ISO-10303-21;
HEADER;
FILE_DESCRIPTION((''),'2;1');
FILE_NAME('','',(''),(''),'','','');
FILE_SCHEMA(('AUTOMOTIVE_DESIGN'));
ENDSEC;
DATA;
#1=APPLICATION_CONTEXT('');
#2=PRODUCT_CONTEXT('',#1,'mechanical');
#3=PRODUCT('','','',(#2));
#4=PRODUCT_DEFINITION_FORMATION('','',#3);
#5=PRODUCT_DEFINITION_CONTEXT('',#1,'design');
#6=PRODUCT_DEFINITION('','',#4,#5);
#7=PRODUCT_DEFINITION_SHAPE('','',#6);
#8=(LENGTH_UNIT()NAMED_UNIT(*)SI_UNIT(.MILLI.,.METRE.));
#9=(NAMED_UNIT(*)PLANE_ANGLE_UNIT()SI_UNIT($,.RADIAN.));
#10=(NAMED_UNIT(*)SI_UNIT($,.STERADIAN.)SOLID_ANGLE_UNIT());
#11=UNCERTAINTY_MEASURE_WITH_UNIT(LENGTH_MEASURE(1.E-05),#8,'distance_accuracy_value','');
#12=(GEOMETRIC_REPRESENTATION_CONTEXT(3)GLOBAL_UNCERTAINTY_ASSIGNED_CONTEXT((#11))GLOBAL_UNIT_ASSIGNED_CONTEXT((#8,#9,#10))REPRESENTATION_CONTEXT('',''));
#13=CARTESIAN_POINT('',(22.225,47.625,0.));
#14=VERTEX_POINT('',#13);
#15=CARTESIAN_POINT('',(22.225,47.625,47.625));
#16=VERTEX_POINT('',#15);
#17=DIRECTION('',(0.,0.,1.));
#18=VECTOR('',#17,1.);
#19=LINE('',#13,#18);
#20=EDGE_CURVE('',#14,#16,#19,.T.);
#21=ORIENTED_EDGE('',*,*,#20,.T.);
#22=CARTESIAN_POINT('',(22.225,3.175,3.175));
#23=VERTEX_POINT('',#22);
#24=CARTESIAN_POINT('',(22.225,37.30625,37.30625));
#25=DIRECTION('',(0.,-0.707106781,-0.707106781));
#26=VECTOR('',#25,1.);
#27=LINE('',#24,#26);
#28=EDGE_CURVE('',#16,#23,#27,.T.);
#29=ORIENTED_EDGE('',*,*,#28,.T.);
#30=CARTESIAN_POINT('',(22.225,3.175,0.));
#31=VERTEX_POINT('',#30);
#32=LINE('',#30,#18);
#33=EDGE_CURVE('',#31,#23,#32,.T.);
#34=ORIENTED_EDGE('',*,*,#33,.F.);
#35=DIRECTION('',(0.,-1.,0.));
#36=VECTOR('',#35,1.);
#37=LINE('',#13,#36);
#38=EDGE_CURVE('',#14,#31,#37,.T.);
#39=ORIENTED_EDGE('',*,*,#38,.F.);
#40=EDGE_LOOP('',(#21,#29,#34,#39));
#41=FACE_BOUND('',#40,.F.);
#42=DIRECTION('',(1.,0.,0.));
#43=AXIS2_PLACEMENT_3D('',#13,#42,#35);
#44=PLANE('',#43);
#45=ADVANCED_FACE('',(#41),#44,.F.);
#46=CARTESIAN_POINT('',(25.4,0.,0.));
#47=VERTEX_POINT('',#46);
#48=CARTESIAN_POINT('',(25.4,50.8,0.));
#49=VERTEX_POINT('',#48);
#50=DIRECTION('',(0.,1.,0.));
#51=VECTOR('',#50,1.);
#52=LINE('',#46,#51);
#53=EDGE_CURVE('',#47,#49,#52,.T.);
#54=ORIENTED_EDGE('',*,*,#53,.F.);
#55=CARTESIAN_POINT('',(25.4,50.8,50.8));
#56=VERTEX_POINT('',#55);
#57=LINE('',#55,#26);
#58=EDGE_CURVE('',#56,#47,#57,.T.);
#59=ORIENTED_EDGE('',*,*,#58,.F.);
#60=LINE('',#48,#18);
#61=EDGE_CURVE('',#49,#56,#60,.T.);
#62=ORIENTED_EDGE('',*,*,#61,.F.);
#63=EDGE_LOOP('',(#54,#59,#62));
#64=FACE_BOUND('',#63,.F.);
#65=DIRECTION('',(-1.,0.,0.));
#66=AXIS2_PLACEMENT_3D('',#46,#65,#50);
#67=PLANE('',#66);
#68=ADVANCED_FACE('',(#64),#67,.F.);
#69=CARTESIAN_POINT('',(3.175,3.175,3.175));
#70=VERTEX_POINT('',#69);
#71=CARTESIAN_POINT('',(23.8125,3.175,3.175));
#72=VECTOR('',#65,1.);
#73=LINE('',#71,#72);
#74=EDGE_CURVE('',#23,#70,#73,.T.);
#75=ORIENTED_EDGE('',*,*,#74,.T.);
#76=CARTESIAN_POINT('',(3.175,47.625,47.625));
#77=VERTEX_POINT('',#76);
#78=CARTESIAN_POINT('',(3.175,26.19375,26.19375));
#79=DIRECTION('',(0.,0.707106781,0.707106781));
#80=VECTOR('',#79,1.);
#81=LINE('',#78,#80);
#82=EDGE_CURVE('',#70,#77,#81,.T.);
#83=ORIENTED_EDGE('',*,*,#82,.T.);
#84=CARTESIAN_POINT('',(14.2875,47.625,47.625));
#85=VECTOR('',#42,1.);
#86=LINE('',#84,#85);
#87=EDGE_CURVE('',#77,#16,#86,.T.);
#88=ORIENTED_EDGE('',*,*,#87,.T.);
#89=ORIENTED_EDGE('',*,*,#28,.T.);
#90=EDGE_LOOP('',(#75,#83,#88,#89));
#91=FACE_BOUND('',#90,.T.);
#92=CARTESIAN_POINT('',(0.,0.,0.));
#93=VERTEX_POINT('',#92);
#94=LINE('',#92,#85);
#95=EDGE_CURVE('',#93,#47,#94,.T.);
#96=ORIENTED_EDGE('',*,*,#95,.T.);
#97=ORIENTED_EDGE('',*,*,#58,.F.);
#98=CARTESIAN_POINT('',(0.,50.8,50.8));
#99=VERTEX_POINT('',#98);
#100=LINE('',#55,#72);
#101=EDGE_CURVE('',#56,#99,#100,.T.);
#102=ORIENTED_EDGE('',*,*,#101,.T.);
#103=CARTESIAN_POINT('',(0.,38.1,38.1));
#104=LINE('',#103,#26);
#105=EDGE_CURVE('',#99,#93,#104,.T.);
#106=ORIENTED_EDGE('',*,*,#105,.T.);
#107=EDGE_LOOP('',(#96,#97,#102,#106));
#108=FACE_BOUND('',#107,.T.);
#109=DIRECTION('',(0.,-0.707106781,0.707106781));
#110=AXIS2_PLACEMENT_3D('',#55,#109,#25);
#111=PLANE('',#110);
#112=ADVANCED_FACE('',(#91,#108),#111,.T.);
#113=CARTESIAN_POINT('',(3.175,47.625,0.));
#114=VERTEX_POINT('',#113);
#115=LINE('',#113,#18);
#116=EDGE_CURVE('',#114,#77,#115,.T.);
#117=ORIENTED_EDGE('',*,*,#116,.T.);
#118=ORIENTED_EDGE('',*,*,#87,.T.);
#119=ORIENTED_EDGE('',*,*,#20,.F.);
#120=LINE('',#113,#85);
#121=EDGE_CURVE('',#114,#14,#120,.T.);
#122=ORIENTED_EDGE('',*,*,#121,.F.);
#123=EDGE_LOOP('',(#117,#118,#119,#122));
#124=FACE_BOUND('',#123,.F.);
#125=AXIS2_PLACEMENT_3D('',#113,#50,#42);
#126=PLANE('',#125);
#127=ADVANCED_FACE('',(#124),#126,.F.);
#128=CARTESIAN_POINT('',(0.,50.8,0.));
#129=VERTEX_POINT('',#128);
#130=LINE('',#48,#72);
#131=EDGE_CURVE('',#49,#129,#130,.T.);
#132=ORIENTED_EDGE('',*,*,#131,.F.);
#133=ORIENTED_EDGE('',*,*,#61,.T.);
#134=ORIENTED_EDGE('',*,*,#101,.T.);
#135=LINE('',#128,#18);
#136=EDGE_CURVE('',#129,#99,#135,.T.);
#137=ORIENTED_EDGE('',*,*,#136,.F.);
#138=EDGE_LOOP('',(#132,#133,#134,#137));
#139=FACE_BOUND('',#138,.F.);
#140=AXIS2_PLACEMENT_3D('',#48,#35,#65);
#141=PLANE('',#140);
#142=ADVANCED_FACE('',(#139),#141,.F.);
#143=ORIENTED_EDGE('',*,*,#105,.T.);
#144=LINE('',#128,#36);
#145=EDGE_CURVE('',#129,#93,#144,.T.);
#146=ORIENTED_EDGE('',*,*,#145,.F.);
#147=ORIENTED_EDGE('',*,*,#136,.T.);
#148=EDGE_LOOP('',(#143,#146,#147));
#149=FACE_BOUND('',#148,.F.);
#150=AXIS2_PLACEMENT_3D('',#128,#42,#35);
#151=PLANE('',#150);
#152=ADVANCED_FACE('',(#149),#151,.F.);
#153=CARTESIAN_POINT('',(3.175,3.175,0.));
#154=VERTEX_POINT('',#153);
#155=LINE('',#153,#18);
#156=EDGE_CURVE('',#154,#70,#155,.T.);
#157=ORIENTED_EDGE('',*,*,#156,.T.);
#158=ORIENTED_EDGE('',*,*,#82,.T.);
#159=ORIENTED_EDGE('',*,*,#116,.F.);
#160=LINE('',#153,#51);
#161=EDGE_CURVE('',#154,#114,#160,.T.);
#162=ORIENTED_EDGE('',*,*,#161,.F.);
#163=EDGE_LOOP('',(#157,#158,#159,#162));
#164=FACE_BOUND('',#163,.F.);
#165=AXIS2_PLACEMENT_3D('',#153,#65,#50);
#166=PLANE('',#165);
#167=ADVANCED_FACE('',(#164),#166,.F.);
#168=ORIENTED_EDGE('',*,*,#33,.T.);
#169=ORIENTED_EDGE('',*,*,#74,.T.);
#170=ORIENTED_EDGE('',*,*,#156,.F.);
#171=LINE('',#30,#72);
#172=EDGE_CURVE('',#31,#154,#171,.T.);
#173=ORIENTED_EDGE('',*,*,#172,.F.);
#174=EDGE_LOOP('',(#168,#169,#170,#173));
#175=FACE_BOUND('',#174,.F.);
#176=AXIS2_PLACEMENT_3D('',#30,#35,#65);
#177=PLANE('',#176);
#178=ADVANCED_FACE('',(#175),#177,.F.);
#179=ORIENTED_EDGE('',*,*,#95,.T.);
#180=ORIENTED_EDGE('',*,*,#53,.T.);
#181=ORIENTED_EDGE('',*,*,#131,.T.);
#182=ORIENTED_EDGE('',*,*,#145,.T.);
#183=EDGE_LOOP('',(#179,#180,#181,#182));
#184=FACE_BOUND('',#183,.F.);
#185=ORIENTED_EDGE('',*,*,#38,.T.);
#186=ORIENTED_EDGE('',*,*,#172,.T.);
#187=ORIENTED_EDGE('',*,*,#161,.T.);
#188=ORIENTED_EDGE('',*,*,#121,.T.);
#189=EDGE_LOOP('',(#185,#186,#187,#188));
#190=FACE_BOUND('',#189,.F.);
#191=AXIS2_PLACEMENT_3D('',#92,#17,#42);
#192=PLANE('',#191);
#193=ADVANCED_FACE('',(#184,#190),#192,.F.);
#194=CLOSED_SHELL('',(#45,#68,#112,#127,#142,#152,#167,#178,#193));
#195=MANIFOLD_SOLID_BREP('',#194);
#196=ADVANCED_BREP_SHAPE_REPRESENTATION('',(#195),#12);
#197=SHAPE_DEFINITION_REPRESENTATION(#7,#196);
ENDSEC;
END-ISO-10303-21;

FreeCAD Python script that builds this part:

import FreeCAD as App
import Part
import Sketcher

V = App.Vector
Q = App.Units.Quantity

doc = App.newDocument("Part")
params = doc.addObject("Spreadsheet::Sheet", "Params")
for row, (alias, value) in enumerate([
    ("sketch1_width", "1 in"),
    ("sketch1_height", "2 in"),
    ("pad1_length", "2 in"),
    ("sketch2_width", "2 in"),
    ("pocket1_length", "2 in"),
], start=1):
    params.set(f"A{row}", alias)
    params.set(f"B{row}", "=" + value)
    params.setAlias(f"B{row}", alias)

body = doc.addObject("PartDesign::Body", "Body")

sketch1 = body.newObject("Sketcher::SketchObject", "Sketch")
sketch1.AttachmentSupport = (doc.getObject("XY_Plane"), [""])
sketch1.MapMode = "FlatFace"
sketch1.addGeometry([
    Part.LineSegment(V(0, 50.8, 0), V(0, 0, 0)),
    Part.LineSegment(V(0, 0, 0), V(25.4, 0, 0)),
    Part.LineSegment(V(25.4, 0, 0), V(25.4, 50.8, 0)),
    Part.LineSegment(V(25.4, 50.8, 0), V(0, 50.8, 0)),
    Part.LineSegment(V(3.175, 3.175, 0), V(3.175, 47.625, 0)),
    Part.LineSegment(V(3.175, 47.625, 0), V(22.225, 47.625, 0)),
    Part.LineSegment(V(22.225, 47.625, 0), V(22.225, 3.175, 0)),
    Part.LineSegment(V(22.225, 3.175, 0), V(3.175, 3.175, 0)),
], False)
sketch1.addConstraint([
    Sketcher.Constraint("Coincident", 0, 2, 1, 1),
    Sketcher.Constraint("Coincident", 1, 2, 2, 1),
    Sketcher.Constraint("Coincident", 2, 2, 3, 1),
    Sketcher.Constraint("Coincident", 3, 2, 0, 1),
    Sketcher.Constraint("Coincident", 4, 2, 5, 1),
    Sketcher.Constraint("Coincident", 5, 2, 6, 1),
    Sketcher.Constraint("Coincident", 6, 2, 7, 1),
    Sketcher.Constraint("Coincident", 7, 2, 4, 1),
    Sketcher.Constraint("Vertical", 0),
    Sketcher.Constraint("Horizontal", 1),
    Sketcher.Constraint("Vertical", 2),
    Sketcher.Constraint("Horizontal", 3),
    Sketcher.Constraint("Vertical", 4),
    Sketcher.Constraint("Horizontal", 5),
    Sketcher.Constraint("Vertical", 6),
    Sketcher.Constraint("Horizontal", 7),
    Sketcher.Constraint("Coincident", 0, 2, -1, 1),
    Sketcher.Constraint("DistanceX", 1, 1, 1, 2, Q("1 in")),
    Sketcher.Constraint("DistanceY", 0, 2, 0, 1, Q("2 in")),
    Sketcher.Constraint("DistanceX", -1, 1, 4, 2, Q("0.125 in")),
    Sketcher.Constraint("DistanceY", -1, 1, 6, 2, Q("0.125 in")),
    Sketcher.Constraint("DistanceY", 4, 2, 3, 2, Q("0.125 in")),
    Sketcher.Constraint("DistanceX", 5, 2, 2, 2, Q("0.125 in")),
])
sketch1.setExpression("Constraints[17]", "Params.sketch1_width")
sketch1.setExpression("Constraints[18]", "Params.sketch1_height")
pad1 = body.newObject("PartDesign::Pad", "Pad")
pad1.Profile = sketch1
pad1.setExpression("Length", "Params.pad1_length")

sketch2 = body.newObject("Sketcher::SketchObject", "Sketch001")
sketch2.AttachmentSupport = (doc.getObject("YZ_Plane"), [""])
sketch2.MapMode = "FlatFace"
sketch2.AttachmentOffset = App.Placement(V(0, 0, 1 * 25.4), App.Rotation())
sketch2.addGeometry([
    Part.LineSegment(V(0, 0, 0), V(50.8, 50.8, 0)),
    Part.LineSegment(V(50.8, 50.8, 0), V(0, 50.8, 0)),
    Part.LineSegment(V(0, 50.8, 0), V(0, 0, 0)),
], False)
sketch2.addConstraint([
    Sketcher.Constraint("Coincident", 0, 2, 1, 1),
    Sketcher.Constraint("Coincident", 1, 2, 2, 1),
    Sketcher.Constraint("Coincident", 2, 2, 0, 1),
    Sketcher.Constraint("Horizontal", 1),
    Sketcher.Constraint("Vertical", 2),
    Sketcher.Constraint("Coincident", 2, 2, -1, 1),
    Sketcher.Constraint("Equal", 1, 2),
    Sketcher.Constraint("DistanceX", 1, 2, 1, 1, Q("2 in")),
])
sketch2.setExpression("Constraints[7]", "Params.sketch2_width")
pocket1 = body.newObject("PartDesign::Pocket", "Pocket")
pocket1.Profile = sketch2
pocket1.setExpression("Length", "Params.pocket1_length")

doc.recompute()
